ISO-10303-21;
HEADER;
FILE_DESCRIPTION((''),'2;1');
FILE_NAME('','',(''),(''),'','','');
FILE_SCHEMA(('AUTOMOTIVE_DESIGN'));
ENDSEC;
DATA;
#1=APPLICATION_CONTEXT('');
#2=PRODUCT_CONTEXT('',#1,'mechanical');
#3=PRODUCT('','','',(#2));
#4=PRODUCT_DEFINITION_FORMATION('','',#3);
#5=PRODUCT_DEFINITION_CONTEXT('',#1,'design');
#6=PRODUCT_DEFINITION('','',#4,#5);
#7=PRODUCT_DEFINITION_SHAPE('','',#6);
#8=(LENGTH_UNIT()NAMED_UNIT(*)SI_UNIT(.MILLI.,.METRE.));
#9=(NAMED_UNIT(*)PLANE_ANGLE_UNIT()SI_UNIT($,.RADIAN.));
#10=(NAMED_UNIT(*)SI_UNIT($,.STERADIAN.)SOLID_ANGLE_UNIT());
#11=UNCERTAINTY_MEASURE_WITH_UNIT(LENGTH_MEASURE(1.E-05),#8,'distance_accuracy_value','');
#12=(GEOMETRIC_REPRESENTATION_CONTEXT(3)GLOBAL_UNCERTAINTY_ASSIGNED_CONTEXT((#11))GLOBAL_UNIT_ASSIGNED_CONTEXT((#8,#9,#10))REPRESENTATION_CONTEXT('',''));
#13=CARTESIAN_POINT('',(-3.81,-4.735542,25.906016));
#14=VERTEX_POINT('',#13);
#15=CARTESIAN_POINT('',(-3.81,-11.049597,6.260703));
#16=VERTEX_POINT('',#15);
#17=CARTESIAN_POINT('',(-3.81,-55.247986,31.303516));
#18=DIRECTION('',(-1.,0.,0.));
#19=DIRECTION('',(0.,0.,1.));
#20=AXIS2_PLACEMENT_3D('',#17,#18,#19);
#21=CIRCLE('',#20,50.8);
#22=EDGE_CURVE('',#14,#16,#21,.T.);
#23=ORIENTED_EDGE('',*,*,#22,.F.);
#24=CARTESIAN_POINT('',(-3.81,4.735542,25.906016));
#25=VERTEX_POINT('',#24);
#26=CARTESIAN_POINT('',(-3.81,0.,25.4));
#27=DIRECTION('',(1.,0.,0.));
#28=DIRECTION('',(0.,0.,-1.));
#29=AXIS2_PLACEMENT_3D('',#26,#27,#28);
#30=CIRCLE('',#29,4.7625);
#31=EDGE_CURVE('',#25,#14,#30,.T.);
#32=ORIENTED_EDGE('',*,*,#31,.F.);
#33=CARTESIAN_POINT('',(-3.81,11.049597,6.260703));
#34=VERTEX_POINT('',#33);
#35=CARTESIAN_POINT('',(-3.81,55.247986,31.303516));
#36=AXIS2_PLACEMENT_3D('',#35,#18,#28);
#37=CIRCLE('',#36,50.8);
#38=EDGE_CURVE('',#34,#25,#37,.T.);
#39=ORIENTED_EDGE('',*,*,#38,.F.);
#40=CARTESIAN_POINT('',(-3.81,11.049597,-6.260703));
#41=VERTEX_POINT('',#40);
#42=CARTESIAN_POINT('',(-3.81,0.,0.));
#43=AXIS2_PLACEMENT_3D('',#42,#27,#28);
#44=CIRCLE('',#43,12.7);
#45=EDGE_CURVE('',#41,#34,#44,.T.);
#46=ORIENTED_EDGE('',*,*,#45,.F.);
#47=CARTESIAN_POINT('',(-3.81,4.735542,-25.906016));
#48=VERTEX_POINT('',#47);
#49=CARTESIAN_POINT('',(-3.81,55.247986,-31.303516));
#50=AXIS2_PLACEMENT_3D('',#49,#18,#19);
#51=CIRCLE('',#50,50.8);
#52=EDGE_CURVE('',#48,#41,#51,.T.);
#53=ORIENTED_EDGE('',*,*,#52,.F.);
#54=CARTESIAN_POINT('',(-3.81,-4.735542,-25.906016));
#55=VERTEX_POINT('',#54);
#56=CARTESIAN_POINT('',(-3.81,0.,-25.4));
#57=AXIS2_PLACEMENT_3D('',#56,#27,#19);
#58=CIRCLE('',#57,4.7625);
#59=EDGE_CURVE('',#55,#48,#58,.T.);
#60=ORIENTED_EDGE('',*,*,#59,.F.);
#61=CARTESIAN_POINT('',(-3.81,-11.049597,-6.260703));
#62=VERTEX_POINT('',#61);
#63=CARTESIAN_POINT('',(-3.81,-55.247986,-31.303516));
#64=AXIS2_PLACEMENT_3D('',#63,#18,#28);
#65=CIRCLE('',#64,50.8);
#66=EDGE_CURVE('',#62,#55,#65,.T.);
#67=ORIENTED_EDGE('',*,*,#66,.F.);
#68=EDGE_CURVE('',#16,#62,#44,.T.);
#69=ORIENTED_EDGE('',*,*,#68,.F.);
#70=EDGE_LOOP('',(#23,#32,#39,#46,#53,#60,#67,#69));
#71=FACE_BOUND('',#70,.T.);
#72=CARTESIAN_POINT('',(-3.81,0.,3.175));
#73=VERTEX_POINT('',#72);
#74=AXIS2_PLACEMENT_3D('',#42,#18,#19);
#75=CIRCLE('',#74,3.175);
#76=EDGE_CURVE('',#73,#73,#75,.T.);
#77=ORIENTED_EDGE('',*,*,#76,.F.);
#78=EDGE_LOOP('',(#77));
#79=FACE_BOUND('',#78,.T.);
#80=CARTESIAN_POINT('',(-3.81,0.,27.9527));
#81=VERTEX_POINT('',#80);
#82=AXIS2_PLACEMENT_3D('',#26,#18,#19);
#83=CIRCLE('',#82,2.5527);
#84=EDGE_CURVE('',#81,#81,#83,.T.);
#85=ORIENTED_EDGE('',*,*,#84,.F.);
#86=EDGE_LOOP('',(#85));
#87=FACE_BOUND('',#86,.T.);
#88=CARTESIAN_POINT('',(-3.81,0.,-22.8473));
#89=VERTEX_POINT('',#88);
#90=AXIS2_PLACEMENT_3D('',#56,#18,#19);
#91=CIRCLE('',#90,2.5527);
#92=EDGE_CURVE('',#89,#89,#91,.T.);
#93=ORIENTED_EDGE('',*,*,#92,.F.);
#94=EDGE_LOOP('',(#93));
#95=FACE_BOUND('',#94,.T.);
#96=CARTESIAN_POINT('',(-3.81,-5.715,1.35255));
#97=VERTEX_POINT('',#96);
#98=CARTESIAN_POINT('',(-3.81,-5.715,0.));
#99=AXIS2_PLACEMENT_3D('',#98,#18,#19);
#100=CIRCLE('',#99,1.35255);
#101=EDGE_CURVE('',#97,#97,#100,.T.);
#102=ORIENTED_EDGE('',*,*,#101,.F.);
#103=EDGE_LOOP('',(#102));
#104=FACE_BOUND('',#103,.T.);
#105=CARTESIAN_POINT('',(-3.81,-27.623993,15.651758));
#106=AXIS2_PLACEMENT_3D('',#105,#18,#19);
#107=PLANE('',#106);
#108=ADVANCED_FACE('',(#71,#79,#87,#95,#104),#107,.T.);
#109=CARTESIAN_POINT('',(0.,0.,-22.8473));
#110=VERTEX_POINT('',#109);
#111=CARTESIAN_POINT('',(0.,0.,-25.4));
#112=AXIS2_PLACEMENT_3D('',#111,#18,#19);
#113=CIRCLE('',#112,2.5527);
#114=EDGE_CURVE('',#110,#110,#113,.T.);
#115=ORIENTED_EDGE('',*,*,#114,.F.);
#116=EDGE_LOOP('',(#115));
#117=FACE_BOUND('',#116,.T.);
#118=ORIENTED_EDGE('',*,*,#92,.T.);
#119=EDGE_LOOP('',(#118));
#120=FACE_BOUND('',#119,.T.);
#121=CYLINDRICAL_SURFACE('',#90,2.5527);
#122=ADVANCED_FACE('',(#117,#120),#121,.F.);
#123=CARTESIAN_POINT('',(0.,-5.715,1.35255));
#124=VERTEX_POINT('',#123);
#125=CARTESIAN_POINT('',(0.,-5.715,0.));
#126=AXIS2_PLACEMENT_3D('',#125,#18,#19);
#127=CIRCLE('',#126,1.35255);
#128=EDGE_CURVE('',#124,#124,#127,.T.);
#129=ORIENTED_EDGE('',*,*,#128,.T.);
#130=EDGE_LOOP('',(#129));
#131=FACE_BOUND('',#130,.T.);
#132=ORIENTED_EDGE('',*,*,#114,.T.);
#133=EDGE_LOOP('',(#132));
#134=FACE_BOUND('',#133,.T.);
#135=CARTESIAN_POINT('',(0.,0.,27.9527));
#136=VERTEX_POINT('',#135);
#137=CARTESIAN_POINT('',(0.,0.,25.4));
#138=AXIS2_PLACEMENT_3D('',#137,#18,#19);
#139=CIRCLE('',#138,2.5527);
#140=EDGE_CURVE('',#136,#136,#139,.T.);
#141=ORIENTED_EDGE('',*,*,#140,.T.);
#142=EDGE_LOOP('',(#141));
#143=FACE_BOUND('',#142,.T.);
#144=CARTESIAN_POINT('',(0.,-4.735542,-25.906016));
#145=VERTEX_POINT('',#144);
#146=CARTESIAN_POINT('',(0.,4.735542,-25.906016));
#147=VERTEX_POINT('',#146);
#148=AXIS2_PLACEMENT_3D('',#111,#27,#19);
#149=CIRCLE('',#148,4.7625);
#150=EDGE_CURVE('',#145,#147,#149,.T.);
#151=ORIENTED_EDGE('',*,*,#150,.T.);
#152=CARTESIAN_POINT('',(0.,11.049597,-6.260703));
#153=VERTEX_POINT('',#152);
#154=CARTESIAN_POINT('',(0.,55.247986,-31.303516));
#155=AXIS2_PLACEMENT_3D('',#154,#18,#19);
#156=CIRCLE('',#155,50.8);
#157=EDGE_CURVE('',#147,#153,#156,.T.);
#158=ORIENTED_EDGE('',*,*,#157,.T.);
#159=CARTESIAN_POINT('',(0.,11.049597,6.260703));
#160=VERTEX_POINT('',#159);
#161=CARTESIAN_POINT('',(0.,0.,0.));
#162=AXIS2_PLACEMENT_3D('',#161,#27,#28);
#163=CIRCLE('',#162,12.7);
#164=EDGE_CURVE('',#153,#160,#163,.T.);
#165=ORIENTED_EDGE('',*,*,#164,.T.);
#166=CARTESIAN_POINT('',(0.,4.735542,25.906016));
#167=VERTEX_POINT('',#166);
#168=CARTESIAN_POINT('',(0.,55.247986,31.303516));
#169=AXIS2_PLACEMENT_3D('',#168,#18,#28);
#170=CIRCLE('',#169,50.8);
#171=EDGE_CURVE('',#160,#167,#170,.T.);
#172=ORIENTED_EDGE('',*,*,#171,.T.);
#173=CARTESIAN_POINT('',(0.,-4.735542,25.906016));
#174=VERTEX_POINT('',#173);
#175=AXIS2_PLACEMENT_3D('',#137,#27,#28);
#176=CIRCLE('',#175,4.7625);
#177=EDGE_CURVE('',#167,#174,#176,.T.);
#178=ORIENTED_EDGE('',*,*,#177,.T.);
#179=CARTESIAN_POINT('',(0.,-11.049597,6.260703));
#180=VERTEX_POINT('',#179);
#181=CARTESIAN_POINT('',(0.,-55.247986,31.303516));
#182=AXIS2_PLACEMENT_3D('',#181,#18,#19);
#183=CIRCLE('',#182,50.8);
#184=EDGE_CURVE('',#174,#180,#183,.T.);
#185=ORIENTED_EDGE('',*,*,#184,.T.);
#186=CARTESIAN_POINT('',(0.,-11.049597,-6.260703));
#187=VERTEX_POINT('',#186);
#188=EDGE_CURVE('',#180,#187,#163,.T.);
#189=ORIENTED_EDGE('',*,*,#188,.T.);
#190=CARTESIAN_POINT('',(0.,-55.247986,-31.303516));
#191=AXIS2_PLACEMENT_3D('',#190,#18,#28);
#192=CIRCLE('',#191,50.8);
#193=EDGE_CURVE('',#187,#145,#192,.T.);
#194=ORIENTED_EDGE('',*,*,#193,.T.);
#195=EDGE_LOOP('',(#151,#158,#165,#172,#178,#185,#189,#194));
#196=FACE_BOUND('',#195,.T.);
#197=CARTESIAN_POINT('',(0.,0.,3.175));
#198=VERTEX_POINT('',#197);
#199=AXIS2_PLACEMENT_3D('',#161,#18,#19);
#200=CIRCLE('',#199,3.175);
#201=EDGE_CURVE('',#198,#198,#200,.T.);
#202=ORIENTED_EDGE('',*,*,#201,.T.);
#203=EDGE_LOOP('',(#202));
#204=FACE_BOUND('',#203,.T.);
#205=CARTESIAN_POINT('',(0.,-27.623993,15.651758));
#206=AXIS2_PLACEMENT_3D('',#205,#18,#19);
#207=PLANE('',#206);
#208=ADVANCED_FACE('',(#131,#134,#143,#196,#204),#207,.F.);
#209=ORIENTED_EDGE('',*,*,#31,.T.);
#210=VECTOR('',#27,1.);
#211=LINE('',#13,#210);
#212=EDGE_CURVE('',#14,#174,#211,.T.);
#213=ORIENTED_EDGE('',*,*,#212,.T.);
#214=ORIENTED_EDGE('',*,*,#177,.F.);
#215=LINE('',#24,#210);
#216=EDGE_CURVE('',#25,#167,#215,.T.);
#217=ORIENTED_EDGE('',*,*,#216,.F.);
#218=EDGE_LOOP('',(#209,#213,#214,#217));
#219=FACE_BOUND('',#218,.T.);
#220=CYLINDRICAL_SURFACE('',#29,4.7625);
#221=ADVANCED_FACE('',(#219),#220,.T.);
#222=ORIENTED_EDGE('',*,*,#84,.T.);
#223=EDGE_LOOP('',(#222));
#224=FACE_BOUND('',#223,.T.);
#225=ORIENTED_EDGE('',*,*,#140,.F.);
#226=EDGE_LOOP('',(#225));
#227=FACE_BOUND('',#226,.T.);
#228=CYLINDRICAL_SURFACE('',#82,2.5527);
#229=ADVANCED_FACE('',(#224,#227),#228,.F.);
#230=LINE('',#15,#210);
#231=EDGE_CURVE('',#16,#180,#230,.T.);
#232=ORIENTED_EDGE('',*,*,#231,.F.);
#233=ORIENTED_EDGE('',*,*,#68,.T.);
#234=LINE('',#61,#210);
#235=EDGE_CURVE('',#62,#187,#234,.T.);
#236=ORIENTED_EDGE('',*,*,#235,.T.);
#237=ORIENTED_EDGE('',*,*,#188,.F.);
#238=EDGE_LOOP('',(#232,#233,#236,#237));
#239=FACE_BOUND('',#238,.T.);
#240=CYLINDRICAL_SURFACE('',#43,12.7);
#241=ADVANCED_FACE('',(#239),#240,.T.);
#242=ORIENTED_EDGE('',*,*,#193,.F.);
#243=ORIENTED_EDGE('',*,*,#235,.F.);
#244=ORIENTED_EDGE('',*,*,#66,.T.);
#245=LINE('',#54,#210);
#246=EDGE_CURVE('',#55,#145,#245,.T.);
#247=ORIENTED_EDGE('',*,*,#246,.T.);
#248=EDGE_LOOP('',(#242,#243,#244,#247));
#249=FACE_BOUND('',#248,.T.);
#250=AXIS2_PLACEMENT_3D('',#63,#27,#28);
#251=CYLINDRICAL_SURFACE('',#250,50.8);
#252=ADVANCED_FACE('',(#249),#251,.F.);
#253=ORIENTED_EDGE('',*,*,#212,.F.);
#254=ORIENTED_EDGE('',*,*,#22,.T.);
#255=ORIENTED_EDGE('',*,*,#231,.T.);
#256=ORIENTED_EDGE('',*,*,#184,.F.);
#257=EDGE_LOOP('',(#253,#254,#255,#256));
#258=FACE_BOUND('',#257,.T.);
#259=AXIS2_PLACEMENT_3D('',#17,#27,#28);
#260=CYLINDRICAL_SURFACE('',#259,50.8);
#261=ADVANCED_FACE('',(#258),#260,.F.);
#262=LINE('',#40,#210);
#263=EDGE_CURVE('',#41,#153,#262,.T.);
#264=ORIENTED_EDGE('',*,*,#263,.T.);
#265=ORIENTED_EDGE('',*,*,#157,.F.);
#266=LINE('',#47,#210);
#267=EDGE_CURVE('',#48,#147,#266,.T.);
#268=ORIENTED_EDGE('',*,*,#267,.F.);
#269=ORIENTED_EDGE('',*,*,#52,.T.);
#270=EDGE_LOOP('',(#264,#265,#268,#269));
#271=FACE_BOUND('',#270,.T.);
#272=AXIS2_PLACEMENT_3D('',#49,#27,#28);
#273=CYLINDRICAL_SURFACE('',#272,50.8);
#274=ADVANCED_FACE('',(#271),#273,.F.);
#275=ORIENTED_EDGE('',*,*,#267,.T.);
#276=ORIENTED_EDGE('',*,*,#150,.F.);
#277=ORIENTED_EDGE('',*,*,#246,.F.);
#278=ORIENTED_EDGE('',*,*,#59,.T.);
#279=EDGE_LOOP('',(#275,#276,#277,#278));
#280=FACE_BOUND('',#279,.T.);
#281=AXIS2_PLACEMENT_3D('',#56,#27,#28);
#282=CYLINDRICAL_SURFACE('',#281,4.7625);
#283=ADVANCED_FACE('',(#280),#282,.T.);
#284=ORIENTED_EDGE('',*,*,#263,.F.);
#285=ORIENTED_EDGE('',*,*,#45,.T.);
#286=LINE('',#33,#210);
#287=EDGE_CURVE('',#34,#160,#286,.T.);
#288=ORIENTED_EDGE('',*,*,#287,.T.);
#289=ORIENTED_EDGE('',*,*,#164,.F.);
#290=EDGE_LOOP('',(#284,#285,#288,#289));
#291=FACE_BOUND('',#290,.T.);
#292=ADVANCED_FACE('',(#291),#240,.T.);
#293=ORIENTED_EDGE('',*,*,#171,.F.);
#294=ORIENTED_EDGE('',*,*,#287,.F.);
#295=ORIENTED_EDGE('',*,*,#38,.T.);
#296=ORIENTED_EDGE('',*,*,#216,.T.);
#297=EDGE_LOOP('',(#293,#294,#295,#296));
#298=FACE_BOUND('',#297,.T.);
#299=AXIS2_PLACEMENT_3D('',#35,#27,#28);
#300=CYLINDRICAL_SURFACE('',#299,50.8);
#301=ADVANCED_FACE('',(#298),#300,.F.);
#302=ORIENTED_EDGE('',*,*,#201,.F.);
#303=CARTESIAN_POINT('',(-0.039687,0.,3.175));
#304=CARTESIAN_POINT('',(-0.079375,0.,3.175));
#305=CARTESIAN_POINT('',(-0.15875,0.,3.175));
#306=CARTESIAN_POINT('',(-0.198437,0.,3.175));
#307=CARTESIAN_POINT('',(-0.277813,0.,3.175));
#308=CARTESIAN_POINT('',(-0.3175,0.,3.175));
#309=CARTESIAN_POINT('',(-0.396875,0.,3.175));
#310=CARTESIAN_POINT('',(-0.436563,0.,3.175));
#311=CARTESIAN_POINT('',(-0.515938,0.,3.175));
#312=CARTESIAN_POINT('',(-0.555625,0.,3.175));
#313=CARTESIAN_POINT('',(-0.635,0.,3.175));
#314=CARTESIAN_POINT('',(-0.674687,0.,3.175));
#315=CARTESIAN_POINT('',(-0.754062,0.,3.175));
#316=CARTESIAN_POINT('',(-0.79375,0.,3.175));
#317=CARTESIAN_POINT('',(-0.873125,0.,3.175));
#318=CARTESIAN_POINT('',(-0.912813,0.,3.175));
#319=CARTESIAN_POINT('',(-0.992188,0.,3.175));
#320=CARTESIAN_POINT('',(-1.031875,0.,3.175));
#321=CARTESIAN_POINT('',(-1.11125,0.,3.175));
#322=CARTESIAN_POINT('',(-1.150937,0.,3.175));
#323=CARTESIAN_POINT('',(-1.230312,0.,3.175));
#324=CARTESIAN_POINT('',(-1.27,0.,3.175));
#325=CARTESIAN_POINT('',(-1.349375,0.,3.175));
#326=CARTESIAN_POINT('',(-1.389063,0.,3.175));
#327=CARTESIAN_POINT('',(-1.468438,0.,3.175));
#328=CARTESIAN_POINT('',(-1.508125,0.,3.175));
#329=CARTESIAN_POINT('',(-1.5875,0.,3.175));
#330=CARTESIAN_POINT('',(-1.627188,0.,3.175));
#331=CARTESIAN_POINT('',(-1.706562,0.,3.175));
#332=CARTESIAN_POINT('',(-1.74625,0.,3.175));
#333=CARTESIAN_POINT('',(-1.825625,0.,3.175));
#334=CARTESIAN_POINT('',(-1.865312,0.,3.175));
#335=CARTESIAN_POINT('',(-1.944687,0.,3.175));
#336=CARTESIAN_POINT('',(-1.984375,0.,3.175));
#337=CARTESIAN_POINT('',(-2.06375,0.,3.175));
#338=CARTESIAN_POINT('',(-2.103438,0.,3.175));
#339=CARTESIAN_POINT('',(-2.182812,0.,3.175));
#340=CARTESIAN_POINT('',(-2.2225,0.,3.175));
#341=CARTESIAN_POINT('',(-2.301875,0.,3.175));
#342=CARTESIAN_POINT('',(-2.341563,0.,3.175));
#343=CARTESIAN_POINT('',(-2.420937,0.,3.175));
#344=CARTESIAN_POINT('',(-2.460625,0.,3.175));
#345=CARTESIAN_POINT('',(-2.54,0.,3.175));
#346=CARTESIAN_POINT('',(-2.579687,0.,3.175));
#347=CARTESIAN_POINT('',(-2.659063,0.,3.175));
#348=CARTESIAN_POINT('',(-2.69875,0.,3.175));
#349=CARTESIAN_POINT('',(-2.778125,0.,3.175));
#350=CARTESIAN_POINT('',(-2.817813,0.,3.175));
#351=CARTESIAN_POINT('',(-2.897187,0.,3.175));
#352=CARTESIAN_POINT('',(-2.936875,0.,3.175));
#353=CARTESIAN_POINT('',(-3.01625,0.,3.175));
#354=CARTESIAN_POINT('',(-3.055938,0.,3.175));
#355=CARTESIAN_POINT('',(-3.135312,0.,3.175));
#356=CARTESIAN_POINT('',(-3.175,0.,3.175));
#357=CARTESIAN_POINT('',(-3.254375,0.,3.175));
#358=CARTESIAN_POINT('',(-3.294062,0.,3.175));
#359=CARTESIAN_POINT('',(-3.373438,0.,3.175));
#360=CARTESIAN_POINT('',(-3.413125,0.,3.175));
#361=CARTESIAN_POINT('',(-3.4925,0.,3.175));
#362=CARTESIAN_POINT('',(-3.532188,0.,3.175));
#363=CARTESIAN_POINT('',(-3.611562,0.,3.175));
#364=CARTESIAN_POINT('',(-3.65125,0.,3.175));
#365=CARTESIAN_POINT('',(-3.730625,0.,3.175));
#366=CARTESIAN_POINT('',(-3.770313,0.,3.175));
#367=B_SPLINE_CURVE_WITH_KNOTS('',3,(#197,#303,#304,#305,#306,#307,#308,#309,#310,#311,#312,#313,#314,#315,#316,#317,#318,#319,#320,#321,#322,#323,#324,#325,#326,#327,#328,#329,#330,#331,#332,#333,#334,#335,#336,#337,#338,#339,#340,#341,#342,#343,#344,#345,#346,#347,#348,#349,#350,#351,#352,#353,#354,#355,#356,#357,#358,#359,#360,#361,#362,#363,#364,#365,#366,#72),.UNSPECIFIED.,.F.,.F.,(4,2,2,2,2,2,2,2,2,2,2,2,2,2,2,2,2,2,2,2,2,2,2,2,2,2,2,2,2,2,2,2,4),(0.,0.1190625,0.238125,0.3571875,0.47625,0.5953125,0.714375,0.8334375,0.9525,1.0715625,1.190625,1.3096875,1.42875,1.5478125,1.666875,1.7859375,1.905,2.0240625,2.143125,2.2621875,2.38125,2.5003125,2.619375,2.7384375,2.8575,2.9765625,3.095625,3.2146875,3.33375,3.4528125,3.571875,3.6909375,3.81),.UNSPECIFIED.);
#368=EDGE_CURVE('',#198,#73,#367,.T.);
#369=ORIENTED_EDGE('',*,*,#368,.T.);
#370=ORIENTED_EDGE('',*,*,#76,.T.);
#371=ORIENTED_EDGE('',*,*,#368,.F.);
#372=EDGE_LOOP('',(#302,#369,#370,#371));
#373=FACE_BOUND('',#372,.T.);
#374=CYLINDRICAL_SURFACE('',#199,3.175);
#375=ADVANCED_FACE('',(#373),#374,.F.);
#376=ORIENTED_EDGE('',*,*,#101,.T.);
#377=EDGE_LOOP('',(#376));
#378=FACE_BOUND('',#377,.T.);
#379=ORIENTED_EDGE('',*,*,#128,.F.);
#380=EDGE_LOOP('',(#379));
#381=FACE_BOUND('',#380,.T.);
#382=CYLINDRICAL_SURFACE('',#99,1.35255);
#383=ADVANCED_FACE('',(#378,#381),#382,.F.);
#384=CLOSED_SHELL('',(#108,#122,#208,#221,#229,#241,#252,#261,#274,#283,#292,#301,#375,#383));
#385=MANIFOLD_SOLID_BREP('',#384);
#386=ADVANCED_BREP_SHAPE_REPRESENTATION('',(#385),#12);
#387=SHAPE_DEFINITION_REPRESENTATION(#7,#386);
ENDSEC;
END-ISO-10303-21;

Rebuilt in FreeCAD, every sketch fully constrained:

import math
import FreeCAD as App
import Part
import Sketcher
from FreeCAD import Vector
Q = App.Units.Quantity

doc = App.newDocument("Part")
body = doc.addObject("PartDesign::Body", "Body")

# Sketch on YZ plane
sketch1 = body.newObject("Sketcher::SketchObject", "Sketch")
sketch1.AttachmentSupport = (doc.getObject("YZ_Plane"), [""])
sketch1.MapMode = "FlatFace"
sketch1.addGeometry([
    Part.ArcOfCircle(Part.Circle(Vector(0, 25.4, 0), Vector(0, 0, 1), 4.8), math.radians(6), math.radians(174)),  # 0
    Part.ArcOfCircle(Part.Circle(Vector(-55.2, 31.3, 0), Vector(0, 0, 1), 50.8), math.radians(-30), math.radians(-6)),  # 1
    Part.ArcOfCircle(Part.Circle(Vector(0, 0, 0), Vector(0, 0, 1), 12.7), math.radians(150), math.radians(210)),  # 2
    Part.ArcOfCircle(Part.Circle(Vector(-55.2, -31.3, 0), Vector(0, 0, 1), 50.8), math.radians(6), math.radians(30)),  # 3
    Part.ArcOfCircle(Part.Circle(Vector(0, -25.4, 0), Vector(0, 0, 1), 4.8), math.radians(-174), math.radians(-6)),  # 4
    Part.ArcOfCircle(Part.Circle(Vector(55.2, -31.3, 0), Vector(0, 0, 1), 50.8), math.radians(150), math.radians(174)),  # 5
    Part.ArcOfCircle(Part.Circle(Vector(0, 0, 0), Vector(0, 0, 1), 12.7), math.radians(-30), math.radians(30)),  # 6
    Part.ArcOfCircle(Part.Circle(Vector(55.2, 31.3, 0), Vector(0, 0, 1), 50.8), math.radians(-174), math.radians(-150)),  # 7
], False)
sketch1.addConstraint([
    Sketcher.Constraint("Tangent", 0, 2, 1, 2),
    Sketcher.Constraint("Tangent", 1, 1, 2, 1),
    Sketcher.Constraint("Tangent", 2, 2, 3, 2),
    Sketcher.Constraint("Tangent", 3, 1, 4, 1),
    Sketcher.Constraint("Tangent", 4, 2, 5, 2),
    Sketcher.Constraint("Tangent", 5, 1, 6, 1),
    Sketcher.Constraint("Tangent", 6, 2, 7, 2),
    Sketcher.Constraint("Tangent", 7, 1, 0, 1),
    Sketcher.Constraint("Coincident", 2, 3, -1, 1),
    Sketcher.Constraint("Coincident", 6, 3, -1, 1),
    Sketcher.Constraint("Equal", 1, 3),
    Sketcher.Constraint("Equal", 0, 4),
    Sketcher.Constraint("Equal", 3, 5),
    Sketcher.Constraint("Equal", 2, 6),
    Sketcher.Constraint("Equal", 5, 7),
    Sketcher.Constraint("Symmetric", 0, 3, 4, 3, -1, 1),
    Sketcher.Constraint("PointOnObject", 0, 3, -2),
    Sketcher.Constraint("Radius", 1, Q("2 in")),
    Sketcher.Constraint("Radius", 2, Q("0.5 in")),
    Sketcher.Constraint("DistanceY", -1, 1, 0, 3, Q("1 in")),
    Sketcher.Constraint("Radius", 0, Q("0.1875 in")),
])
pad1 = body.newObject("PartDesign::Pad", "Pad")
pad1.Profile = sketch1
pad1.Length = Q("0.15 in")
pad1.Reversed = True

# Sketch on YZ plane
sketch2 = body.newObject("Sketcher::SketchObject", "Sketch001")
sketch2.AttachmentSupport = (doc.getObject("YZ_Plane"), [""])
sketch2.MapMode = "FlatFace"
sketch2.AttachmentOffset = App.Placement(Vector(0, 0, -0.15 * 25.4), App.Rotation())
sketch2.addGeometry([
    Part.Circle(Vector(0, -25.4, 0), Vector(0, 0, 1), 2.6),
    Part.Circle(Vector(0, 25.4, 0), Vector(0, 0, 1), 2.6),
], False)
sketch2.addConstraint([
    Sketcher.Constraint("Equal", 0, 1),
    Sketcher.Constraint("Symmetric", 0, 3, 1, 3, -1, 1),
    Sketcher.Constraint("PointOnObject", 0, 3, -2),
    Sketcher.Constraint("Diameter", 0, Q("0.201 in")),
    Sketcher.Constraint("DistanceY", 0, 3, -1, 1, Q("1 in")),
])
doc.recompute()
hole = body.newObject("PartDesign::Hole", "Hole")
hole.Profile = sketch2
hole.ThreadType = "None"
hole.Diameter = Q("0.201 in")
hole.DepthType = "ThroughAll"
hole.Reversed = True

# Sketch on YZ plane
sketch3 = body.newObject("Sketcher::SketchObject", "Sketch002")
sketch3.AttachmentSupport = (doc.getObject("YZ_Plane"), [""])
sketch3.MapMode = "FlatFace"
sketch3.AttachmentOffset = App.Placement(Vector(0, 0, -0.15 * 25.4), App.Rotation())
sketch3.addGeometry(Part.Circle(Vector(-5.7, 0, 0), Vector(0, 0, 1), 1.4), False)
sketch3.addConstraint([
    Sketcher.Constraint("PointOnObject", 0, 3, -1),
    Sketcher.Constraint("Diameter", 0, Q("0.1065 in")),
    Sketcher.Constraint("DistanceX", 0, 3, -1, 1, Q("0.225 in")),
])
doc.recompute()
hole2 = body.newObject("PartDesign::Hole", "Hole001")
hole2.Profile = sketch3
hole2.ThreadType = "None"
hole2.Diameter = Q("0.1065 in")
hole2.DepthType = "ThroughAll"
hole2.Reversed = True

# Sketch on YZ plane
sketch4 = body.newObject("Sketcher::SketchObject", "Sketch003")
sketch4.AttachmentSupport = (doc.getObject("YZ_Plane"), [""])
sketch4.MapMode = "FlatFace"
sketch4.AttachmentOffset = App.Placement(Vector(0, 0, -0.15 * 25.4), App.Rotation())
sketch4.addGeometry(Part.Circle(Vector(0, 0, 0), Vector(0, 0, 1), 3.2), False)
sketch4.addConstraint([
    Sketcher.Constraint("Coincident", 0, 3, -1, 1),
    Sketcher.Constraint("Diameter", 0, Q("0.25 in")),
])
pocket1 = body.newObject("PartDesign::Pocket", "Pocket")
pocket1.Profile = sketch4
pocket1.Type = "ThroughAll"
pocket1.Reversed = True

doc.recompute()
